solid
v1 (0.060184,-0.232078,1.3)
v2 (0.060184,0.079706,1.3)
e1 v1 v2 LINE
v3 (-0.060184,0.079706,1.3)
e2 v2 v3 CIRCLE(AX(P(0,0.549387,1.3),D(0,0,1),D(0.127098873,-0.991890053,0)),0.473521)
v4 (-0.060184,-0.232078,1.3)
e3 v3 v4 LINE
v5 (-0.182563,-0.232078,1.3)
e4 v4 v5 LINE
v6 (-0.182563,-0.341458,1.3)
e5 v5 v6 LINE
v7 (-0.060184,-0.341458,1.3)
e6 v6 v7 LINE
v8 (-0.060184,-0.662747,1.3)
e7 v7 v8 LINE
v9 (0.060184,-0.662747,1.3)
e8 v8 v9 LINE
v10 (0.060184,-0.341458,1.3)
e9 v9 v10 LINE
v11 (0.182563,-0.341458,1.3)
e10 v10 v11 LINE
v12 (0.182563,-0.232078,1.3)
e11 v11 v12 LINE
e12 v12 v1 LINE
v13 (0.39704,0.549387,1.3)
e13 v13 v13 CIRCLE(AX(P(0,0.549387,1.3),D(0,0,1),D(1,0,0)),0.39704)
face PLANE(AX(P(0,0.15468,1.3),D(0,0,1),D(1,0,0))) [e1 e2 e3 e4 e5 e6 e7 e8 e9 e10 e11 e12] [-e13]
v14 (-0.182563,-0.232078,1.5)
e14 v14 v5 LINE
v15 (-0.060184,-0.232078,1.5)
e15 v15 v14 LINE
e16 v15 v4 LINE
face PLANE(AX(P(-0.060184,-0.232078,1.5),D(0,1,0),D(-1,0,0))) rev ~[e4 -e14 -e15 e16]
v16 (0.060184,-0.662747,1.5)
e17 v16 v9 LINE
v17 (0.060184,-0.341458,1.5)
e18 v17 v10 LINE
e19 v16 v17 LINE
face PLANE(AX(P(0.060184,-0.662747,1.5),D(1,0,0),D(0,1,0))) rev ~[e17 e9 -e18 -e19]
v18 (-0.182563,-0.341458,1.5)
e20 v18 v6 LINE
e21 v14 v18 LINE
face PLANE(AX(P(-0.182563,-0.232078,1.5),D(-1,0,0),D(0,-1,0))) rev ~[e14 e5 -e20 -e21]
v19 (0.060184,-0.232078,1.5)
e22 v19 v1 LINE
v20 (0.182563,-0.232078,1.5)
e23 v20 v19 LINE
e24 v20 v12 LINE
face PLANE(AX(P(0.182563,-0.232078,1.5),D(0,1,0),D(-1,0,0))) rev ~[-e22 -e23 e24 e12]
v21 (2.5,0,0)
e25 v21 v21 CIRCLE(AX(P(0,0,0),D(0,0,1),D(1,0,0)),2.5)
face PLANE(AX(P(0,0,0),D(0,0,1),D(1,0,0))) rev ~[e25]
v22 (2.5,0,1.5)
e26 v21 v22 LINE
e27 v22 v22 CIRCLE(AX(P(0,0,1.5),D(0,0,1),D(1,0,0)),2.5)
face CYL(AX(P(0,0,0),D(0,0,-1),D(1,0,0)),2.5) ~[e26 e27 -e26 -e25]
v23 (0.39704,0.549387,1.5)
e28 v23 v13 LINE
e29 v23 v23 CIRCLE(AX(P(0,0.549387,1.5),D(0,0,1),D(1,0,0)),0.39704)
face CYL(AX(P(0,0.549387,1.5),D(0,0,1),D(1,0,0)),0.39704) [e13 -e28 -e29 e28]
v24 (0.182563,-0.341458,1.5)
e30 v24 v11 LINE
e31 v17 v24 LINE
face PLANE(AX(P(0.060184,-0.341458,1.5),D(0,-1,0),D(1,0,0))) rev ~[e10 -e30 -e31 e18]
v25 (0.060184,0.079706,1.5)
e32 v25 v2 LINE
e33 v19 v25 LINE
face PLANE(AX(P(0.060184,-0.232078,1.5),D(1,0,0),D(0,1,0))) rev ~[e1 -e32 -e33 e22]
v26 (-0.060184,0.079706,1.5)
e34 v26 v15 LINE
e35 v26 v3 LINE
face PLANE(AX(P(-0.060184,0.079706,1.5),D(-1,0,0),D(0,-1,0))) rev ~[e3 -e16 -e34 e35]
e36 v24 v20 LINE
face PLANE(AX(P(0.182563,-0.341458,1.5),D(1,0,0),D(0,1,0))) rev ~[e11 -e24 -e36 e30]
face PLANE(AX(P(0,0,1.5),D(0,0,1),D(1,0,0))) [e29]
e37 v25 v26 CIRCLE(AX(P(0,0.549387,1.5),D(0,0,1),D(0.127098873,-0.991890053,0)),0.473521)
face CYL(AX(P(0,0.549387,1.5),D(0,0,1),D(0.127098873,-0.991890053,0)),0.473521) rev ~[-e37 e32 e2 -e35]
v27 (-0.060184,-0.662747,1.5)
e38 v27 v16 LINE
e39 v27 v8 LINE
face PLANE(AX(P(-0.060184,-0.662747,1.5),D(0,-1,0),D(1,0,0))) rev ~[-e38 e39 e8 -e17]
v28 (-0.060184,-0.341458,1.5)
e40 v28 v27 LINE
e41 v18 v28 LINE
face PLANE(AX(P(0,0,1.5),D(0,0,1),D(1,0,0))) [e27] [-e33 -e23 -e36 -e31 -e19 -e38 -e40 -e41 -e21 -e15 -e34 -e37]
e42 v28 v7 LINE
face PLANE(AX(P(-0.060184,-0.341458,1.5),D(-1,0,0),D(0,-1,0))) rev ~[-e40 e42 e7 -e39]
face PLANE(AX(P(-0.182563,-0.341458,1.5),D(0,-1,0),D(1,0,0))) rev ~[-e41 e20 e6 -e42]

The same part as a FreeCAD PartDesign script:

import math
import FreeCAD as App
import Part
import Sketcher
from FreeCAD import Vector

doc = App.newDocument("Part")
body = doc.addObject("PartDesign::Body", "Body")

sketch1 = body.newObject("Sketcher::SketchObject", "Sketch")
sketch1.AttachmentSupport = (doc.getObject("XY_Plane"), [""])
sketch1.MapMode = "FlatFace"
sketch1.addGeometry(Part.Circle(Vector(0, 0, 0), Vector(0, 0, 1), 2.5), False)
sketch1.addConstraint([
    Sketcher.Constraint("Coincident", 0, 3, -1, 1),
    Sketcher.Constraint("Diameter", 0, 5.0),
])
pad1 = body.newObject("PartDesign::Pad", "Pad")
pad1.Profile = sketch1
pad1.Length = 1.5

sketch2 = body.newObject("Sketcher::SketchObject", "Sketch001")
sketch2.AttachmentSupport = (doc.getObject("XY_Plane"), [""])
sketch2.MapMode = "FlatFace"
sketch2.AttachmentOffset = App.Placement(Vector(0, 0, 1.5), App.Rotation())
sketch2.addGeometry([
    Part.LineSegment(Vector(0.06, -0.23, 0), Vector(0.06, 0.08, 0)),
    Part.ArcOfCircle(Part.Circle(Vector(0, 0.55, 0), Vector(0, 0, 1), 0.47), math.radians(-83), math.radians(263)),
    Part.LineSegment(Vector(-0.06, 0.08, 0), Vector(-0.06, -0.23, 0)),
    Part.LineSegment(Vector(-0.06, -0.23, 0), Vector(-0.18, -0.23, 0)),
    Part.LineSegment(Vector(-0.18, -0.23, 0), Vector(-0.18, -0.34, 0)),
    Part.LineSegment(Vector(-0.18, -0.34, 0), Vector(-0.06, -0.34, 0)),
    Part.LineSegment(Vector(-0.06, -0.34, 0), Vector(-0.06, -0.66, 0)),
    Part.LineSegment(Vector(-0.06, -0.66, 0), Vector(0.06, -0.66, 0)),
    Part.LineSegment(Vector(0.06, -0.66, 0), Vector(0.06, -0.34, 0)),
    Part.LineSegment(Vector(0.06, -0.34, 0), Vector(0.18, -0.34, 0)),
    Part.LineSegment(Vector(0.18, -0.34, 0), Vector(0.18, -0.23, 0)),
    Part.LineSegment(Vector(0.18, -0.23, 0), Vector(0.06, -0.23, 0)),
    Part.Circle(Vector(0, 0.55, 0), Vector(0, 0, 1), 0.4),
], False)
sketch2.addConstraint([
    Sketcher.Constraint("Coincident", 0, 2, 1, 1),
    Sketcher.Constraint("Coincident", 1, 2, 2, 1),
    Sketcher.Constraint("Coincident", 2, 2, 3, 1),
    Sketcher.Constraint("Coincident", 3, 2, 4, 1),
    Sketcher.Constraint("Coincident", 4, 2, 5, 1),
    Sketcher.Constraint("Coincident", 5, 2, 6, 1),
    Sketcher.Constraint("Coincident", 6, 2, 7, 1),
    Sketcher.Constraint("Coincident", 7, 2, 8, 1),
    Sketcher.Constraint("Coincident", 8, 2, 9, 1),
    Sketcher.Constraint("Coincident", 9, 2, 10, 1),
    Sketcher.Constraint("Coincident", 10, 2, 11, 1),
    Sketcher.Constraint("Coincident", 11, 2, 0, 1),
    Sketcher.Constraint("Vertical", 0),
    Sketcher.Constraint("Vertical", 2),
    Sketcher.Constraint("Horizontal", 3),
    Sketcher.Constraint("Vertical", 4),
    Sketcher.Constraint("Horizontal", 5),
    Sketcher.Constraint("Vertical", 6),
    Sketcher.Constraint("Horizontal", 7),
    Sketcher.Constraint("Vertical", 8),
    Sketcher.Constraint("Horizontal", 9),
    Sketcher.Constraint("Vertical", 10),
    Sketcher.Constraint("Horizontal", 11),
    Sketcher.Constraint("Coincident", 12, 3, 1, 3),
    Sketcher.Constraint("Symmetric", 0, 2, 1, 2, -2),
    Sketcher.Constraint("Symmetric", 5, 2, 8, 2, -2),
    Sketcher.Constraint("Symmetric", 3, 2, 10, 2, -2),
    Sketcher.Constraint("Vertical", 2, 2, 5, 2),
    Sketcher.Constraint("Diameter", 12, 0.79408),
    Sketcher.Constraint("Radius", 1, 0.473521),
    Sketcher.Constraint("DistanceX", 3, 2, 3, 1, 0.122379),
    Sketcher.Constraint("DistanceY", 4, 2, 4, 1, 0.10938),
    Sketcher.Constraint("DistanceY", 6, 2, 6, 1, 0.321289),
    Sketcher.Constraint("DistanceX", 7, 1, 7, 2, 0.120368),
    Sketcher.Constraint("DistanceY", 0, 1, 0, 2, 0.311784),
    Sketcher.Constraint("DistanceY", -1, 1, 1, 3, 0.549387),
])
pocket1 = body.newObject("PartDesign::Pocket", "Pocket")
pocket1.Profile = sketch2
pocket1.Length = 0.2

doc.recompute()
